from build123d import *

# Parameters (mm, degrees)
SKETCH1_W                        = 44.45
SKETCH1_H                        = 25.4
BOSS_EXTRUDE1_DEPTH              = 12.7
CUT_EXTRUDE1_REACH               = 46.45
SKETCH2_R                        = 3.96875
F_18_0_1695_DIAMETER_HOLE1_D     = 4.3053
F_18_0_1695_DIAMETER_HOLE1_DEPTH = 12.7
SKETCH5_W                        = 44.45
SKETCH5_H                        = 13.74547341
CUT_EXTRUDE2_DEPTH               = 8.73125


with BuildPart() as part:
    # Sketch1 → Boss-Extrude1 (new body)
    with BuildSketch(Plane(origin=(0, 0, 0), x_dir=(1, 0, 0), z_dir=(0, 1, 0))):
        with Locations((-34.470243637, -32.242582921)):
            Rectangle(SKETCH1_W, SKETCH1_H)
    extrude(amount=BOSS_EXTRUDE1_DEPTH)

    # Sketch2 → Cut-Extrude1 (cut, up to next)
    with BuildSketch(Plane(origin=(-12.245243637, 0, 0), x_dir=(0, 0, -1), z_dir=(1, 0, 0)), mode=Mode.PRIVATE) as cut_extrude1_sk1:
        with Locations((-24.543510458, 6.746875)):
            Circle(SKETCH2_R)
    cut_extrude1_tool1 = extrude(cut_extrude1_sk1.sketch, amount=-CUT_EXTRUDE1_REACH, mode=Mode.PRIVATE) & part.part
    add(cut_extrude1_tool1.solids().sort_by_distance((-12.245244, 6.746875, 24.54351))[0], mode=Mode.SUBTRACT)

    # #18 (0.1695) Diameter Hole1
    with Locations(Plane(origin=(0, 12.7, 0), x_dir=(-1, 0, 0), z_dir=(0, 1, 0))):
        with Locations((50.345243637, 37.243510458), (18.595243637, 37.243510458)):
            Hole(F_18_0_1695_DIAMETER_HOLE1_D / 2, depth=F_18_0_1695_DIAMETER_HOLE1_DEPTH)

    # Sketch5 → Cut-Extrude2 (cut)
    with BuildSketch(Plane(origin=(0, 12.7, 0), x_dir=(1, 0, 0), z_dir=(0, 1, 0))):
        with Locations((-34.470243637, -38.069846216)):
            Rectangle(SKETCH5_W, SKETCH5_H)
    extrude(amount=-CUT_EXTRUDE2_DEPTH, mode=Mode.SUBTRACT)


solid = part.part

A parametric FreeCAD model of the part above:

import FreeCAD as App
import Part
import Sketcher
from FreeCAD import Vector
Q = App.Units.Quantity

doc = App.newDocument("Part")
body = doc.addObject("PartDesign::Body", "Body")

# Sketch on XZ plane
sketch1 = body.newObject("Sketcher::SketchObject", "Sketch")
sketch1.AttachmentSupport = (doc.getObject("XZ_Plane"), [""])
sketch1.MapMode = "FlatFace"
sketch1.addGeometry([
    Part.LineSegment(Vector(-56.695244, 19.542583, 0), Vector(-56.695244, 44.942583, 0)),
    Part.LineSegment(Vector(-56.695244, 44.942583, 0), Vector(-12.245244, 44.942583, 0)),
    Part.LineSegment(Vector(-12.245244, 44.942583, 0), Vector(-12.245244, 19.542583, 0)),
    Part.LineSegment(Vector(-12.245244, 19.542583, 0), Vector(-56.695244, 19.542583, 0)),
], False)
sketch1.addConstraint([
    Sketcher.Constraint("Coincident", 0, 2, 1, 1),
    Sketcher.Constraint("Coincident", 1, 2, 2, 1),
    Sketcher.Constraint("Coincident", 2, 2, 3, 1),
    Sketcher.Constraint("Coincident", 3, 2, 0, 1),
    Sketcher.Constraint("Vertical", 0),
    Sketcher.Constraint("Horizontal", 1),
    Sketcher.Constraint("Vertical", 2),
    Sketcher.Constraint("Horizontal", 3),
    Sketcher.Constraint("DistanceY", 0, 1, 0, 2, Q("1 in")),
    Sketcher.Constraint("DistanceX", 1, 1, 1, 2, Q("1.75 in")),
    Sketcher.Constraint("DistanceX", 0, 2, -1, 1, Q("56.695244 mm")),
    Sketcher.Constraint("DistanceY", -1, 1, 0, 2, Q("44.942583 mm")),
])
pad1 = body.newObject("PartDesign::Pad", "Pad")
pad1.Profile = sketch1
pad1.Length = Q("0.5 in")
pad1.Reversed = True

# Sketch on YZ plane
sketch2 = body.newObject("Sketcher::SketchObject", "Sketch001")
sketch2.AttachmentSupport = (doc.getObject("YZ_Plane"), [""])
sketch2.MapMode = "FlatFace"
sketch2.AttachmentOffset = App.Placement(Vector(0, 0, -12.245244), App.Rotation())
sketch2.addGeometry(Part.Circle(Vector(6.746875, 24.54351, 0), Vector(0, 0, 1), 3.96875), False)
sketch2.addConstraint([
    Sketcher.Constraint("Diameter", 0, Q("0.3125 in")),
    Sketcher.Constraint("DistanceX", -1, 1, 0, 3, Q("0.265625 in")),
    Sketcher.Constraint("DistanceY", -1, 1, 0, 3, Q("24.54351 mm")),
])
pocket1 = body.newObject("PartDesign::Pocket", "Pocket")
pocket1.Profile = sketch2
pocket1.Type = "UpToFirst"

# Sketch on XZ plane
sketch3 = body.newObject("Sketcher::SketchObject", "Sketch002")
sketch3.AttachmentSupport = (doc.getObject("XZ_Plane"), [""])
sketch3.MapMode = "FlatFace"
sketch3.AttachmentOffset = App.Placement(Vector(0, 0, -0.5 * 25.4), App.Rotation())
sketch3.addGeometry([
    Part.Circle(Vector(-50.345244, 37.24351, 0), Vector(0, 0, 1), 2.15265),
    Part.Circle(Vector(-18.595244, 37.24351, 0), Vector(0, 0, 1), 2.15265),
], False)
sketch3.addConstraint([
    Sketcher.Constraint("Equal", 0, 1),
    Sketcher.Constraint("Horizontal", 0, 3, 1, 3),
    Sketcher.Constraint("Diameter", 0, Q("0.1695 in")),
    Sketcher.Constraint("DistanceX", 0, 3, 1, 3, Q("1.25 in")),
    Sketcher.Constraint("DistanceY", -1, 1, 0, 3, Q("37.24351 mm")),
    Sketcher.Constraint("DistanceX", 0, 3, -1, 1, Q("50.345244 mm")),
])
doc.recompute()
hole = body.newObject("PartDesign::Hole", "Hole")
hole.Profile = sketch3
hole.ThreadType = "None"
hole.Diameter = Q("0.1695 in")
hole.DepthType = "Dimension"
hole.Depth = Q("0.5 in")
hole.DrillPoint = "Flat"
hole.Reversed = True

# Sketch on XZ plane
sketch4 = body.newObject("Sketcher::SketchObject", "Sketch003")
sketch4.AttachmentSupport = (doc.getObject("XZ_Plane"), [""])
sketch4.MapMode = "FlatFace"
sketch4.AttachmentOffset = App.Placement(Vector(0, 0, -0.5 * 25.4), App.Rotation())
sketch4.addGeometry([
    Part.LineSegment(Vector(-56.695244, 31.19711, 0), Vector(-56.695244, 44.942583, 0)),
    Part.LineSegment(Vector(-56.695244, 44.942583, 0), Vector(-12.245244, 44.942583, 0)),
    Part.LineSegment(Vector(-12.245244, 44.942583, 0), Vector(-12.245244, 31.19711, 0)),
    Part.LineSegment(Vector(-12.245244, 31.19711, 0), Vector(-56.695244, 31.19711, 0)),
], False)
sketch4.addConstraint([
    Sketcher.Constraint("Coincident", 0, 2, 1, 1),
    Sketcher.Constraint("Coincident", 1, 2, 2, 1),
    Sketcher.Constraint("Coincident", 2, 2, 3, 1),
    Sketcher.Constraint("Coincident", 3, 2, 0, 1),
    Sketcher.Constraint("Vertical", 0),
    Sketcher.Constraint("Horizontal", 1),
    Sketcher.Constraint("Vertical", 2),
    Sketcher.Constraint("Horizontal", 3),
    Sketcher.Constraint("DistanceX", 1, 1, 1, 2, Q("1.75 in")),
    Sketcher.Constraint("DistanceY", 0, 1, 0, 2, Q("13.745473 mm")),
    Sketcher.Constraint("DistanceY", -1, 1, 2, 2, Q("31.19711 mm")),
    Sketcher.Constraint("DistanceX", 0, 2, -1, 1, Q("56.695244 mm")),
])
pocket2 = body.newObject("PartDesign::Pocket", "Pocket001")
pocket2.Profile = sketch4
pocket2.Length = Q("0.34375 in")
pocket2.Reversed = True

doc.recompute()
